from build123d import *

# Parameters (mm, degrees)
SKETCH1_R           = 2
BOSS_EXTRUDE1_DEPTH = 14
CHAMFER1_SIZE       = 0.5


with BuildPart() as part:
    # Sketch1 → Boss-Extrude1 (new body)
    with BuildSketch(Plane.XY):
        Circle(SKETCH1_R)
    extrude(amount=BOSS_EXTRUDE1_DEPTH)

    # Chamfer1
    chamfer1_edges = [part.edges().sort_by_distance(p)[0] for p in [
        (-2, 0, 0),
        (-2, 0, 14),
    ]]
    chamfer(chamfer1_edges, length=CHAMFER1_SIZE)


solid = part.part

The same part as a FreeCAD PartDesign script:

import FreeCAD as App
import Part
import Sketcher

V = App.Vector


def edges_at(feature, points):
    """Names of the edges that pass closest to the given points."""
    edges = feature.Shape.Edges
    near = lambda p: min(range(len(edges)), key=lambda i: edges[i].distToShape(Part.Vertex(*p))[0])
    return sorted({f"Edge{near(p) + 1}" for p in points})

doc = App.newDocument("Part")
params = doc.addObject("Spreadsheet::Sheet", "Params")
for row, (alias, value) in enumerate([
    ("sketch1_diameter", "4 mm"),
    ("pad1_length", "14 mm"),
    ("chamfer_size", "0.5 mm"),
], start=1):
    params.set(f"A{row}", alias)
    params.set(f"B{row}", "=" + value)
    params.setAlias(f"B{row}", alias)

body = doc.addObject("PartDesign::Body", "Body")

sketch1 = body.newObject("Sketcher::SketchObject", "Sketch")
sketch1.AttachmentSupport = (doc.getObject("XY_Plane"), [""])
sketch1.MapMode = "FlatFace"
sketch1.addGeometry(Part.Circle(V(0, 0, 0), V(0, 0, 1), 2), False)
sketch1.addConstraint([
    Sketcher.Constraint("Coincident", 0, 3, -1, 1),
    Sketcher.Constraint("Diameter", 0, 4.0),
])
sketch1.setExpression("Constraints[1]", "Params.sketch1_diameter")
pad1 = body.newObject("PartDesign::Pad", "Pad")
pad1.Profile = sketch1
pad1.setExpression("Length", "Params.pad1_length")
doc.recompute()

chamfer = body.newObject("PartDesign::Chamfer", "Chamfer")
chamfer.Base = (pad1, edges_at(pad1, [(-2, 0, 0), (-2, 0, 14)]))
chamfer.setExpression("Size", "Params.chamfer_size")

doc.recompute()
